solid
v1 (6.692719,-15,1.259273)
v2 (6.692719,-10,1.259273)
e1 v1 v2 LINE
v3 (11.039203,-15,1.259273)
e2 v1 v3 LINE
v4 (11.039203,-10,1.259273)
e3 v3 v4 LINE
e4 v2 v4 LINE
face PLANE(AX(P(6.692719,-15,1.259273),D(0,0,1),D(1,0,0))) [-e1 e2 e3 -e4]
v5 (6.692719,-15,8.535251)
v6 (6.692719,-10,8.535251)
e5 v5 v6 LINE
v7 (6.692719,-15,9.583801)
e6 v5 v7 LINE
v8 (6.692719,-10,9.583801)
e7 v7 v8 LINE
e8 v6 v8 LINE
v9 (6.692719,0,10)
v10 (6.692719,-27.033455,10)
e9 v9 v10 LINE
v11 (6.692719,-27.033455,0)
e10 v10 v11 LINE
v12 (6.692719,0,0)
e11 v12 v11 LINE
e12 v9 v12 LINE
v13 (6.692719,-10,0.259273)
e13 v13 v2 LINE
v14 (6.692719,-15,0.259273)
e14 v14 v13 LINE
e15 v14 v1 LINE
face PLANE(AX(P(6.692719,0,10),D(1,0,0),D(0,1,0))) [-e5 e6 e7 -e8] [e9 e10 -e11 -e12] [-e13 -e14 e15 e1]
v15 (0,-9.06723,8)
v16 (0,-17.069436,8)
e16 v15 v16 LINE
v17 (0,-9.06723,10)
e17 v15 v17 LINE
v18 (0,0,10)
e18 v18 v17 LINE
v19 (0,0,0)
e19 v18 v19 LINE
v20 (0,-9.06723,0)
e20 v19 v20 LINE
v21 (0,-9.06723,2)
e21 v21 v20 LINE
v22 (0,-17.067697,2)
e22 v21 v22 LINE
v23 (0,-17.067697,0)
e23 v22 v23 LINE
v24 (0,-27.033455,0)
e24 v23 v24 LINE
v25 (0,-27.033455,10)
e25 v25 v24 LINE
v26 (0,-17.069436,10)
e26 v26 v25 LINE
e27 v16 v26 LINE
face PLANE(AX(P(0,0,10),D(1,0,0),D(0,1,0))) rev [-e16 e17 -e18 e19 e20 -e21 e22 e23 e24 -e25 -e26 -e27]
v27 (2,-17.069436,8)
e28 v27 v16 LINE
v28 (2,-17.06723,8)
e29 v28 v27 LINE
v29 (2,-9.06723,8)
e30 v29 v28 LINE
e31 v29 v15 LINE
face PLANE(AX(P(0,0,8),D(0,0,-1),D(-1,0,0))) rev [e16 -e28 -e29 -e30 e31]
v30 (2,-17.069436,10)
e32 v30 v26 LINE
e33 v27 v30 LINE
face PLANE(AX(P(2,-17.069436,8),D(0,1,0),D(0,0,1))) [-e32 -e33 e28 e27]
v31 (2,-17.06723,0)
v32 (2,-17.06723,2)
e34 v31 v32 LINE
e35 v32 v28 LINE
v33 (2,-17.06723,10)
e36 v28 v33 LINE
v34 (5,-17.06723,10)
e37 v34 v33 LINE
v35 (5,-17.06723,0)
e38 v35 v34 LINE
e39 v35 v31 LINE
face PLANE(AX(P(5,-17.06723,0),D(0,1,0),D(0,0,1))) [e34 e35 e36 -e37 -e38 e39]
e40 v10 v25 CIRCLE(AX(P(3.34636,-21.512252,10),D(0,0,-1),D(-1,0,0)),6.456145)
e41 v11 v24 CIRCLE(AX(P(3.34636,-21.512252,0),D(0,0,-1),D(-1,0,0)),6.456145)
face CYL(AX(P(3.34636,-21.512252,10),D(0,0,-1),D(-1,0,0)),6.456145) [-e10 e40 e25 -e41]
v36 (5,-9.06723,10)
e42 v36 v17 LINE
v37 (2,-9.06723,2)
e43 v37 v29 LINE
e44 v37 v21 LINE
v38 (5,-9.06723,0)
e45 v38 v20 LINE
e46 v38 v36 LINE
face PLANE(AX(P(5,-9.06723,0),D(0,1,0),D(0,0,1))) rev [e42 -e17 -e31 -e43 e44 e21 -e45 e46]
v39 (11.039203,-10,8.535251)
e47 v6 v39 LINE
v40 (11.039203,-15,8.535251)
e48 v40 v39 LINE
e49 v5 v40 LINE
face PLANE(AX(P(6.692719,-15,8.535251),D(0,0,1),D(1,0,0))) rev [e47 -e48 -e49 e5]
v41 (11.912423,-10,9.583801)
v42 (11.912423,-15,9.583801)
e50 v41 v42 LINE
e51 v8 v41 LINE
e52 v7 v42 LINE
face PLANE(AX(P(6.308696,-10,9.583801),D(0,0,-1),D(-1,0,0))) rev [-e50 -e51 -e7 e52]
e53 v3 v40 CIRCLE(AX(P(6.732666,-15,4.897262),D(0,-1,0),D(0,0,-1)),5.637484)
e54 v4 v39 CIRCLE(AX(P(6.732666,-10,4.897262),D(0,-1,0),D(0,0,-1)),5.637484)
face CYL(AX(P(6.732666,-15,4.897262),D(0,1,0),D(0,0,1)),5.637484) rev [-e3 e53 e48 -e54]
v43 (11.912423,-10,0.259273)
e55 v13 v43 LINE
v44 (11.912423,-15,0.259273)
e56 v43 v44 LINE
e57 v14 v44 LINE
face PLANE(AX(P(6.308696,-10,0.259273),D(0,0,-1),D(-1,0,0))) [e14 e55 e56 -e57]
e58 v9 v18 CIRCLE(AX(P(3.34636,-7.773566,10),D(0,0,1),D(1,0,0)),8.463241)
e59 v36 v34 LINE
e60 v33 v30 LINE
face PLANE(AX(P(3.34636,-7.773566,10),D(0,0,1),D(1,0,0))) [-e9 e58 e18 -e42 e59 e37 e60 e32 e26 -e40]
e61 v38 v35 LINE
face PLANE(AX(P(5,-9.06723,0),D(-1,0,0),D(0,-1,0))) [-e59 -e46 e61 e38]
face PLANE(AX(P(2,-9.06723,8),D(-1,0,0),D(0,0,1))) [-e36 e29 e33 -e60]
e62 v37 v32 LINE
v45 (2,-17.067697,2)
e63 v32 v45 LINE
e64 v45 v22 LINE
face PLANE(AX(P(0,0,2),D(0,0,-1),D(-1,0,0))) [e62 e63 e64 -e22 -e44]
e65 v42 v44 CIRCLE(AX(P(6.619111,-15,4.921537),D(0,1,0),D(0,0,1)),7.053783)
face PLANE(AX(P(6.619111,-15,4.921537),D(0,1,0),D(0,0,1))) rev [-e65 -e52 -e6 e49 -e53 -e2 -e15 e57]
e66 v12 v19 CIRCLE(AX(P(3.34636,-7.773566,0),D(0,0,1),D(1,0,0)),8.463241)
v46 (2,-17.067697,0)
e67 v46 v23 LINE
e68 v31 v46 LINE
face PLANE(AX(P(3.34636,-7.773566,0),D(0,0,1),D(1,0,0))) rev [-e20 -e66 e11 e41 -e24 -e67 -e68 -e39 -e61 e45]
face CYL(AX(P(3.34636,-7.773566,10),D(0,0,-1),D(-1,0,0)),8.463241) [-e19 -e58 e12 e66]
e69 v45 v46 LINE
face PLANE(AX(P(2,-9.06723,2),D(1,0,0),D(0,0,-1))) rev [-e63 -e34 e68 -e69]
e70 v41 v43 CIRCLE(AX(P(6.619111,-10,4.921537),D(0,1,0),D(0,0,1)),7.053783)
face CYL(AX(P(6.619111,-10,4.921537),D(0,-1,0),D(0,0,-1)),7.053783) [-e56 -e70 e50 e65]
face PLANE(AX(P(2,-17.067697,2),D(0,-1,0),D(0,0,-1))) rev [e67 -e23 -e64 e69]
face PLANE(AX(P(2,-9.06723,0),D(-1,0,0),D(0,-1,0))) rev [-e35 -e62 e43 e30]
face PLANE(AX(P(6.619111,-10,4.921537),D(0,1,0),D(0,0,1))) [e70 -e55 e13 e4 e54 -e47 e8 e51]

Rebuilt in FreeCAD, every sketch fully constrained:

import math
import FreeCAD as App
import Part
import Sketcher
from FreeCAD import Vector
Q = App.Units.Quantity

doc = App.newDocument("Part")
body = doc.addObject("PartDesign::Body", "Body")

sketch1 = body.newObject("Sketcher::SketchObject", "Sketch")
sketch1.AttachmentSupport = (doc.getObject("XY_Plane"), [""])
sketch1.MapMode = "FlatFace"
sketch1.addGeometry([
    Part.LineSegment(Vector(0, 0, 0), Vector(0, -27.033455, 0)),
    Part.ArcOfCircle(Part.Circle(Vector(3.34636, -21.512252, 0), Vector(0, 0, 1), 6.456145), math.radians(-121.219739), math.radians(-58.780261)),
    Part.LineSegment(Vector(6.692719, -27.033455, 0), Vector(6.692719, 0, 0)),
    Part.ArcOfCircle(Part.Circle(Vector(3.34636, -7.773566, 0), Vector(0, 0, 1), 8.463241), math.radians(66.709119), math.radians(113.290881)),
], False)
sketch1.addConstraint([
    Sketcher.Constraint("Coincident", 0, 2, 1, 1),
    Sketcher.Constraint("Coincident", 1, 2, 2, 1),
    Sketcher.Constraint("Coincident", 2, 2, 3, 1),
    Sketcher.Constraint("Coincident", 3, 2, 0, 1),
    Sketcher.Constraint("Vertical", 0),
    Sketcher.Constraint("Vertical", 2),
    Sketcher.Constraint("Coincident", 3, 2, -1, 1),
    Sketcher.Constraint("PointOnObject", 2, 2, -1),
    Sketcher.Constraint("Horizontal", 0, 2, 1, 2),
    Sketcher.Constraint("Radius", 3, Q("8.463241 mm")),
    Sketcher.Constraint("Radius", 1, Q("6.456145 mm")),
    Sketcher.Constraint("DistanceY", 0, 2, 0, 1, Q("27.033455 mm")),
    Sketcher.Constraint("DistanceX", -1, 1, 1, 3, Q("3.34636 mm")),
])
pad1 = body.newObject("PartDesign::Pad", "Pad")
pad1.Profile = sketch1
pad1.Length = 10

sketch2 = body.newObject("Sketcher::SketchObject", "Sketch001")
sketch2.AttachmentSupport = (doc.getObject("XY_Plane"), [""])
sketch2.MapMode = "FlatFace"
sketch2.AttachmentOffset = App.Placement(Vector(0, 0, 10), App.Rotation())
sketch2.addGeometry([
    Part.LineSegment(Vector(2, -9.06723, 0), Vector(2, -17.06723, 0)),
    Part.LineSegment(Vector(2, -17.06723, 0), Vector(5, -17.06723, 0)),
    Part.LineSegment(Vector(5, -17.06723, 0), Vector(5, -9.06723, 0)),
    Part.LineSegment(Vector(5, -9.06723, 0), Vector(2, -9.06723, 0)),
], False)
sketch2.addConstraint([
    Sketcher.Constraint("Coincident", 0, 2, 1, 1),
    Sketcher.Constraint("Coincident", 1, 2, 2, 1),
    Sketcher.Constraint("Coincident", 2, 2, 3, 1),
    Sketcher.Constraint("Coincident", 3, 2, 0, 1),
    Sketcher.Constraint("Vertical", 0),
    Sketcher.Constraint("Horizontal", 1),
    Sketcher.Constraint("Vertical", 2),
    Sketcher.Constraint("Horizontal", 3),
    Sketcher.Constraint("DistanceX", 1, 1, 1, 2, Q("3 mm")),
    Sketcher.Constraint("DistanceY", 0, 2, 0, 1, Q("8 mm")),
    Sketcher.Constraint("DistanceX", -1, 1, 0, 2, Q("2 mm")),
    Sketcher.Constraint("DistanceY", 0, 2, -1, 1, Q("17.06723 mm")),
])
pocket1 = body.newObject("PartDesign::Pocket", "Pocket")
pocket1.Profile = sketch2
pocket1.Length = 10

sketch3 = body.newObject("Sketcher::SketchObject", "Sketch002")
sketch3.AttachmentSupport = (doc.getObject("XZ_Plane"), [""])
sketch3.MapMode = "FlatFace"
sketch3.AttachmentOffset = App.Placement(Vector(0, 0, 12.5), App.Rotation())
sketch3.addGeometry([
    Part.LineSegment(Vector(6.308696, 9.583801, 0), Vector(11.912423, 9.583801, 0)),
    Part.ArcOfCircle(Part.Circle(Vector(6.619111, 4.921537, 0), Vector(0, 0, 1), 7.053783), math.radians(-41.373082), math.radians(41.373082)),
    Part.LineSegment(Vector(11.912423, 0.259273, 0), Vector(6.308696, 0.259273, 0)),
    Part.LineSegment(Vector(6.308696, 0.259273, 0), Vector(6.308696, 9.583801, 0)),
], False)
sketch3.addConstraint([
    Sketcher.Constraint("Coincident", 0, 2, 1, 2),
    Sketcher.Constraint("Coincident", 1, 1, 2, 1),
    Sketcher.Constraint("Coincident", 2, 2, 3, 1),
    Sketcher.Constraint("Coincident", 3, 2, 0, 1),
    Sketcher.Constraint("Horizontal", 0),
    Sketcher.Constraint("Horizontal", 2),
    Sketcher.Constraint("Vertical", 3),
    Sketcher.Constraint("Vertical", 0, 2, 1, 1),
    Sketcher.Constraint("Radius", 1, Q("7.053783 mm")),
    Sketcher.Constraint("DistanceY", 3, 1, 3, 2, Q("9.324529 mm")),
    Sketcher.Constraint("DistanceY", -1, 1, 0, 2, Q("9.583801 mm")),
    Sketcher.Constraint("DistanceX", 0, 1, 0, 2, Q("5.603728 mm")),
    Sketcher.Constraint("DistanceX", -1, 1, 1, 3, Q("6.619111 mm")),
])
pad2 = body.newObject("PartDesign::Pad", "Pad001")
pad2.Profile = sketch3
pad2.Length = 5
pad2.Midplane = True

sketch4 = body.newObject("Sketcher::SketchObject", "Sketch003")
sketch4.AttachmentSupport = (doc.getObject("XZ_Plane"), [""])
sketch4.MapMode = "FlatFace"
sketch4.AttachmentOffset = App.Placement(Vector(0, 0, 10), App.Rotation())
sketch4.addGeometry([
    Part.LineSegment(Vector(6.692719, 8.535251, 0), Vector(11.039203, 8.535251, 0)),
    Part.ArcOfCircle(Part.Circle(Vector(6.732666, 4.897262, 0), Vector(0, 0, 1), 5.637484), math.radians(-40.189777), math.radians(40.189777)),
    Part.LineSegment(Vector(11.039203, 1.259273, 0), Vector(6.692719, 1.259273, 0)),
    Part.LineSegment(Vector(6.692719, 1.259273, 0), Vector(6.692719, 8.535251, 0)),
], False)
sketch4.addConstraint([
    Sketcher.Constraint("Coincident", 0, 2, 1, 2),
    Sketcher.Constraint("Coincident", 1, 1, 2, 1),
    Sketcher.Constraint("Coincident", 2, 2, 3, 1),
    Sketcher.Constraint("Coincident", 3, 2, 0, 1),
    Sketcher.Constraint("Horizontal", 0),
    Sketcher.Constraint("Horizontal", 2),
    Sketcher.Constraint("Vertical", 3),
    Sketcher.Constraint("Vertical", 0, 2, 1, 1),
    Sketcher.Constraint("Radius", 1, Q("5.637484 mm")),
    Sketcher.Constraint("DistanceY", 3, 1, 3, 2, Q("7.275979 mm")),
    Sketcher.Constraint("DistanceX", 0, 1, 0, 2, Q("4.346484 mm")),
    Sketcher.Constraint("DistanceY", -1, 1, 1, 3, Q("4.897262 mm")),
    Sketcher.Constraint("DistanceX", -1, 1, 2, 2, Q("6.692719 mm")),
])
pocket2 = body.newObject("PartDesign::Pocket", "Pocket001")
pocket2.Profile = sketch4
pocket2.Length = 5
pocket2.Reversed = True

sketch5 = body.newObject("Sketcher::SketchObject", "Sketch004")
sketch5.AttachmentSupport = (doc.getObject("XY_Plane"), [""])
sketch5.MapMode = "FlatFace"
sketch5.addGeometry([
    Part.LineSegment(Vector(2, -9.06723, 0), Vector(2, -17.067697, 0)),
    Part.LineSegment(Vector(2, -17.067697, 0), Vector(0, -17.067697, 0)),
    Part.LineSegment(Vector(0, -17.067697, 0), Vector(0, -9.06723, 0)),
    Part.LineSegment(Vector(0, -9.06723, 0), Vector(2, -9.06723, 0)),
], False)
sketch5.addConstraint([
    Sketcher.Constraint("Coincident", 0, 2, 1, 1),
    Sketcher.Constraint("Coincident", 1, 2, 2, 1),
    Sketcher.Constraint("Coincident", 2, 2, 3, 1),
    Sketcher.Constraint("Coincident", 3, 2, 0, 1),
    Sketcher.Constraint("Vertical", 0),
    Sketcher.Constraint("Horizontal", 1),
    Sketcher.Constraint("Vertical", 2),
    Sketcher.Constraint("Horizontal", 3),
    Sketcher.Constraint("PointOnObject", 1, 2, -2),
    Sketcher.Constraint("DistanceX", 1, 2, 1, 1, Q("2 mm")),
    Sketcher.Constraint("DistanceY", 0, 2, 0, 1, Q("8.000467 mm")),
    Sketcher.Constraint("DistanceY", 2, 2, -1, 1, Q("9.06723 mm")),
])
pocket3 = body.newObject("PartDesign::Pocket", "Pocket002")
pocket3.Profile = sketch5
pocket3.Length = 2
pocket3.Reversed = True

sketch6 = body.newObject("Sketcher::SketchObject", "Sketch005")
sketch6.AttachmentSupport = (doc.getObject("XY_Plane"), [""])
sketch6.MapMode = "FlatFace"
sketch6.AttachmentOffset = App.Placement(Vector(0, 0, 10), App.Rotation())
sketch6.addGeometry([
    Part.LineSegment(Vector(0, -9.06723, 0), Vector(0, -17.069436, 0)),
    Part.LineSegment(Vector(0, -17.069436, 0), Vector(2, -17.069436, 0)),
    Part.LineSegment(Vector(2, -17.069436, 0), Vector(2, -9.06723, 0)),
    Part.LineSegment(Vector(2, -9.06723, 0), Vector(0, -9.06723, 0)),
], False)
sketch6.addConstraint([
    Sketcher.Constraint("Coincident", 0, 2, 1, 1),
    Sketcher.Constraint("Coincident", 1, 2, 2, 1),
    Sketcher.Constraint("Coincident", 2, 2, 3, 1),
    Sketcher.Constraint("Coincident", 3, 2, 0, 1),
    Sketcher.Constraint("Vertical", 0),
    Sketcher.Constraint("Horizontal", 1),
    Sketcher.Constraint("Vertical", 2),
    Sketcher.Constraint("Horizontal", 3),
    Sketcher.Constraint("PointOnObject", 0, 2, -2),
    Sketcher.Constraint("DistanceX", 1, 1, 1, 2, Q("2 mm")),
    Sketcher.Constraint("DistanceY", 0, 2, 0, 1, Q("8.002206 mm")),
    Sketcher.Constraint("DistanceY", 2, 2, -1, 1, Q("9.06723 mm")),
])
pocket4 = body.newObject("PartDesign::Pocket", "Pocket003")
pocket4.Profile = sketch6
pocket4.Length = 2

doc.recompute()
